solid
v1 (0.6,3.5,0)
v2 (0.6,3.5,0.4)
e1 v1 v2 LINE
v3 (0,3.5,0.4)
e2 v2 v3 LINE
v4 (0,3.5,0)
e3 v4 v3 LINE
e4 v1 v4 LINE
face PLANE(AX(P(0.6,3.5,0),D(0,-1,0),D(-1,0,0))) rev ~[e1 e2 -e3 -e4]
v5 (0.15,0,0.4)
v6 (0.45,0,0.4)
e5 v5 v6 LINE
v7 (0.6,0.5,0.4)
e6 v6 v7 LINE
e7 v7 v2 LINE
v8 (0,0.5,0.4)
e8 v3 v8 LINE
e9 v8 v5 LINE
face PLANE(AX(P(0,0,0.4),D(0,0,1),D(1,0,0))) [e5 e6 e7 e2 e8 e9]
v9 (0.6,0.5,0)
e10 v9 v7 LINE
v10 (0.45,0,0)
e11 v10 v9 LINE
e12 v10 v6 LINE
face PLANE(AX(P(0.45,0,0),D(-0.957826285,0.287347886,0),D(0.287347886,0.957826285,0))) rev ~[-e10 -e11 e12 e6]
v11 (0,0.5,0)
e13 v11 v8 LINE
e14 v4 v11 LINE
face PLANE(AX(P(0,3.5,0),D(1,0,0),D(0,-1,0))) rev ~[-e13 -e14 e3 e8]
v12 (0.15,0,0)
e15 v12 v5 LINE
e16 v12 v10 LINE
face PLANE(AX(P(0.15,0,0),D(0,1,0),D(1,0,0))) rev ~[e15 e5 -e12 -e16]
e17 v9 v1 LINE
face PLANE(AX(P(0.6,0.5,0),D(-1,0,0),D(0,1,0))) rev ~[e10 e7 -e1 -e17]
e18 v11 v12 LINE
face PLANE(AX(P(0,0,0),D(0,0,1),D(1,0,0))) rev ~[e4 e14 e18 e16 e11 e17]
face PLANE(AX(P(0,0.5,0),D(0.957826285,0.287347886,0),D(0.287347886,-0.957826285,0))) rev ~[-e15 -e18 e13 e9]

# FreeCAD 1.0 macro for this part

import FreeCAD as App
import Part
import Sketcher
Q = App.Units.Quantity

doc = App.newDocument("Part")
body = doc.addObject("PartDesign::Body", "Body")

sketch1 = body.newObject("Sketcher::SketchObject", "Sketch")
sketch1.AttachmentSupport = (doc.getObject("XY_Plane"), [""])
sketch1.MapMode = "FlatFace"
sketch1.addGeometry([
    Part.LineSegment(App.Vector(0.6, 3.5, 0), App.Vector(0, 3.5, 0)),
    Part.LineSegment(App.Vector(0, 3.5, 0), App.Vector(0, 0.5, 0)),
    Part.LineSegment(App.Vector(0, 0.5, 0), App.Vector(0.15, 0, 0)),
    Part.LineSegment(App.Vector(0.15, 0, 0), App.Vector(0.45, 0, 0)),
    Part.LineSegment(App.Vector(0.45, 0, 0), App.Vector(0.6, 0.5, 0)),
    Part.LineSegment(App.Vector(0.6, 0.5, 0), App.Vector(0.6, 3.5, 0)),
], False)
sketch1.addConstraint([
    Sketcher.Constraint("Coincident", 0, 2, 1, 1),
    Sketcher.Constraint("Coincident", 1, 2, 2, 1),
    Sketcher.Constraint("Coincident", 2, 2, 3, 1),
    Sketcher.Constraint("Coincident", 3, 2, 4, 1),
    Sketcher.Constraint("Coincident", 4, 2, 5, 1),
    Sketcher.Constraint("Coincident", 5, 2, 0, 1),
    Sketcher.Constraint("Horizontal", 0),
    Sketcher.Constraint("Vertical", 1),
    Sketcher.Constraint("Horizontal", 3),
    Sketcher.Constraint("Vertical", 5),
    Sketcher.Constraint("PointOnObject", 0, 2, -2),
    Sketcher.Constraint("PointOnObject", 2, 2, -1),
    Sketcher.Constraint("Horizontal", 1, 2, 4, 2),
    Sketcher.Constraint("Equal", 2, 4),
    Sketcher.Constraint("DistanceY", 1, 2, 1, 1, Q("3 mm")),
    Sketcher.Constraint("DistanceX", 0, 2, 0, 1, Q("0.6 mm")),
    Sketcher.Constraint("DistanceX", 3, 1, 3, 2, Q("0.3 mm")),
    Sketcher.Constraint("DistanceY", -1, 1, 1, 2, Q("0.5 mm")),
])
pad1 = body.newObject("PartDesign::Pad", "Pad")
pad1.Profile = sketch1
pad1.Length = 0.4

doc.recompute()
